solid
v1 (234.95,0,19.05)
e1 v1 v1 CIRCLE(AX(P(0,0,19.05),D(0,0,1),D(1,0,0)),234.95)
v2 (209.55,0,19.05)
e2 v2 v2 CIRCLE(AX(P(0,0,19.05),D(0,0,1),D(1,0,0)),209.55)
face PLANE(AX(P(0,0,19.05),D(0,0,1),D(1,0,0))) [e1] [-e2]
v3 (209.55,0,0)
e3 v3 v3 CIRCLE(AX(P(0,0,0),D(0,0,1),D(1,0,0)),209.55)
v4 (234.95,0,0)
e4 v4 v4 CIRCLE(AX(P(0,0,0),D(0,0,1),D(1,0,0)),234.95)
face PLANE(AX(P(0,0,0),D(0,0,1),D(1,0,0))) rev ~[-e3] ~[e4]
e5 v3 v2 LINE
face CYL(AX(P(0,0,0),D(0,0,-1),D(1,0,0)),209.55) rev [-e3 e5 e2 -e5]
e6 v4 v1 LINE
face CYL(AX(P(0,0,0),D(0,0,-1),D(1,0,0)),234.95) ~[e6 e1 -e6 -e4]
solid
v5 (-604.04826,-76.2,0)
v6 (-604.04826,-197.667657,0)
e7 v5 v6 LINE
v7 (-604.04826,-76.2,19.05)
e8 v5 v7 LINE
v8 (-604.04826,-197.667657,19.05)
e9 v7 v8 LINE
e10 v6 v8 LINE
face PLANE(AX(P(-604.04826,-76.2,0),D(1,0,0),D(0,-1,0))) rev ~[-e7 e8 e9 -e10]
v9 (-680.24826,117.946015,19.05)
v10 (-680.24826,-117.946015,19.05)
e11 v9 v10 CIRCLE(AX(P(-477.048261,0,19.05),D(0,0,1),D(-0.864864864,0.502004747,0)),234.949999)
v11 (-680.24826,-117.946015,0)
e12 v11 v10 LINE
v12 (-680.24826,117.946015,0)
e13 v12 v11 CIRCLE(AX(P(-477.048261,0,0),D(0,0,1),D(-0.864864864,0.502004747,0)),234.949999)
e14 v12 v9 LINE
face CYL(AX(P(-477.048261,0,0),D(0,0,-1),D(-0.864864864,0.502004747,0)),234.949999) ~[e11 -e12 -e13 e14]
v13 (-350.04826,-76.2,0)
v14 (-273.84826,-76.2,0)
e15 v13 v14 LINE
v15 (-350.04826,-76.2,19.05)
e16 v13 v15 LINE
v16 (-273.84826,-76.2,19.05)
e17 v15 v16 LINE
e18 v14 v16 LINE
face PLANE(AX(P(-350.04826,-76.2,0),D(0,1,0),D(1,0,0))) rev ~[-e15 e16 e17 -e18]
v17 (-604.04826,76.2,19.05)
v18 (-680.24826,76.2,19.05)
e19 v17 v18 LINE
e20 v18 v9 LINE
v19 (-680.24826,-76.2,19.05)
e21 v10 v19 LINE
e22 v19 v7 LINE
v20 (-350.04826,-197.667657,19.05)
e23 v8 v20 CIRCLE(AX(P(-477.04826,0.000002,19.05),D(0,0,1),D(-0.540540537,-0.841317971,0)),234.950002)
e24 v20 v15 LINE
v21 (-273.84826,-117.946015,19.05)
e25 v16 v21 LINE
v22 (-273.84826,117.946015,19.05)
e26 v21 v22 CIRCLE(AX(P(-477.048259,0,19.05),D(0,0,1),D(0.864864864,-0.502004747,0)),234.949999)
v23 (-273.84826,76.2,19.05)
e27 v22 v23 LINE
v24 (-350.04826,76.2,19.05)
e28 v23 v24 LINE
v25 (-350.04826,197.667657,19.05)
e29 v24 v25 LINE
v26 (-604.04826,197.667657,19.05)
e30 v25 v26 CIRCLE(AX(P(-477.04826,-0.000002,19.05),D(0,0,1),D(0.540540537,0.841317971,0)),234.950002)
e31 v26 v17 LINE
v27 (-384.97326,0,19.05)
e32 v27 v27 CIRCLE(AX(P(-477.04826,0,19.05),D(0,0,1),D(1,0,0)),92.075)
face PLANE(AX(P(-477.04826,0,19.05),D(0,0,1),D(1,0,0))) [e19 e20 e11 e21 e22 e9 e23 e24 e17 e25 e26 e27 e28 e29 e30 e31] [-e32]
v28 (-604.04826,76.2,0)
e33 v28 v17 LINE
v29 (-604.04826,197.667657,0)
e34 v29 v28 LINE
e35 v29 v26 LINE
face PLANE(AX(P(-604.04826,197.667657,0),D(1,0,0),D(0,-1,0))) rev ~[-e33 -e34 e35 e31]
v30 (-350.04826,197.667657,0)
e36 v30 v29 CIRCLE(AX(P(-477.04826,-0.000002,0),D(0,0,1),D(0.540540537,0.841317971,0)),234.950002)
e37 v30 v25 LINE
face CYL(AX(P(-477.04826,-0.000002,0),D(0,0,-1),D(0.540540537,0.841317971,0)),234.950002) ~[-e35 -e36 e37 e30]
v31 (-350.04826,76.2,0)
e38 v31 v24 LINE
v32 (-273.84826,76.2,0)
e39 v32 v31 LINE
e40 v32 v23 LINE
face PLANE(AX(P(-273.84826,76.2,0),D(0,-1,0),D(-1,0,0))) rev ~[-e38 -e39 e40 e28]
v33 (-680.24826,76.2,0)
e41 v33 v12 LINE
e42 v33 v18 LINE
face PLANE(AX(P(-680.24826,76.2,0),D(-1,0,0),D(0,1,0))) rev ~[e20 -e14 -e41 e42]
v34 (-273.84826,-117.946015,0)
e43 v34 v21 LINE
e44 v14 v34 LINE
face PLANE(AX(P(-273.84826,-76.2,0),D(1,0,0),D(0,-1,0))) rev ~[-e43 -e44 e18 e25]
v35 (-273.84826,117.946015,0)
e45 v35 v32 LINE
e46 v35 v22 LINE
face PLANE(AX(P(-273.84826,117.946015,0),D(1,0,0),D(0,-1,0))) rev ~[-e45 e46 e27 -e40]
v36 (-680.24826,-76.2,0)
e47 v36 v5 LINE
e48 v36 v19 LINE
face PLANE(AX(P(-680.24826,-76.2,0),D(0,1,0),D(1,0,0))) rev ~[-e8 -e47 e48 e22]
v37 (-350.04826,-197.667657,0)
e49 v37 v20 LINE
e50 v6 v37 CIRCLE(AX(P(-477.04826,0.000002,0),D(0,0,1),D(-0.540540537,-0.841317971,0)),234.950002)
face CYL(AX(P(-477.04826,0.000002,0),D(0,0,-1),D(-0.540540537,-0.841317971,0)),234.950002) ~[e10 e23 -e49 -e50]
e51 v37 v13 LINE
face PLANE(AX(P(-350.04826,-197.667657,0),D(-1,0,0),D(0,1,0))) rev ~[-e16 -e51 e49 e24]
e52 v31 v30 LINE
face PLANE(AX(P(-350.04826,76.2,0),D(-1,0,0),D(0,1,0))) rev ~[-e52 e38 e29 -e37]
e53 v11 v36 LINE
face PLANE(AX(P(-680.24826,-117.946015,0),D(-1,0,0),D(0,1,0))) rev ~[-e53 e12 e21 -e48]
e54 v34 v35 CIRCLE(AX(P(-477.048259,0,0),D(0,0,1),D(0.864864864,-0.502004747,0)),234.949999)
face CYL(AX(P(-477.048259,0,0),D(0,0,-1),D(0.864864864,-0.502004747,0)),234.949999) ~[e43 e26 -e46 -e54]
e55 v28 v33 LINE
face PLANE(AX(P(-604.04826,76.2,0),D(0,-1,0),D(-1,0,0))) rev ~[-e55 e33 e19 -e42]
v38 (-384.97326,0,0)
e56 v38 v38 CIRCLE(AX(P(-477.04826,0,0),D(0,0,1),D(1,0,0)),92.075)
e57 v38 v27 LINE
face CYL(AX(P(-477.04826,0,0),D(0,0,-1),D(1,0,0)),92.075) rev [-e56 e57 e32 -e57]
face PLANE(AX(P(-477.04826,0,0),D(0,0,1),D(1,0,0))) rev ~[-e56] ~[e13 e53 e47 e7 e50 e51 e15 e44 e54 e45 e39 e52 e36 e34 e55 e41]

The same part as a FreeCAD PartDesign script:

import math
import FreeCAD as App
import Part
import Sketcher
from FreeCAD import Vector
Q = App.Units.Quantity

doc = App.newDocument("Part")
body = doc.addObject("PartDesign::Body", "Body")

# Sketch on XY plane
sketch1 = body.newObject("Sketcher::SketchObject", "Sketch")
sketch1.AttachmentSupport = (doc.getObject("XY_Plane"), [""])
sketch1.MapMode = "FlatFace"
sketch1.addGeometry([
    Part.Circle(Vector(0, 0, 0), Vector(0, 0, 1), 235),
    Part.Circle(Vector(0, 0, 0), Vector(0, 0, 1), 210),
], False)
sketch1.addConstraint([
    Sketcher.Constraint("Coincident", 0, 3, -1, 1),
    Sketcher.Constraint("Coincident", 1, 3, -1, 1),
    Sketcher.Constraint("Diameter", 0, Q("18.5 in")),
    Sketcher.Constraint("Diameter", 1, Q("16.5 in")),
])
pad1 = body.newObject("PartDesign::Pad", "Pad")
pad1.Profile = sketch1
pad1.Length = Q("0.75 in")
body2 = doc.addObject("PartDesign::Body", "Body001")

# Sketch on XY plane
sketch2 = body2.newObject("Sketcher::SketchObject", "Sketch001")
sketch2.AttachmentSupport = (doc.getObject("XY_Plane001"), [""])
sketch2.MapMode = "FlatFace"
sketch2.addGeometry([
    Part.LineSegment(Vector(-350, 76, 0), Vector(-350, 198, 0)),  # 0
    Part.ArcOfCircle(Part.Circle(Vector(-477, 0, 0), Vector(0, 0, 1), 235), math.radians(57), math.radians(123)),  # 1
    Part.LineSegment(Vector(-604, 198, 0), Vector(-604, 76, 0)),  # 2
    Part.LineSegment(Vector(-604, 76, 0), Vector(-680, 76, 0)),  # 3
    Part.LineSegment(Vector(-680, 76, 0), Vector(-680, 118, 0)),  # 4
    Part.ArcOfCircle(Part.Circle(Vector(-477, 0, 0), Vector(0, 0, 1), 235), math.radians(150), math.radians(210)),  # 5
    Part.LineSegment(Vector(-680, -118, 0), Vector(-680, -76, 0)),  # 6
    Part.LineSegment(Vector(-680, -76, 0), Vector(-604, -76, 0)),  # 7
    Part.LineSegment(Vector(-604, -76, 0), Vector(-604, -198, 0)),  # 8
    Part.ArcOfCircle(Part.Circle(Vector(-477, 0, 0), Vector(0, 0, 1), 235), math.radians(-123), math.radians(-57)),  # 9
    Part.LineSegment(Vector(-350, -198, 0), Vector(-350, -76, 0)),  # 10
    Part.LineSegment(Vector(-350, -76, 0), Vector(-274, -76, 0)),  # 11
    Part.LineSegment(Vector(-274, -76, 0), Vector(-274, -118, 0)),  # 12
    Part.ArcOfCircle(Part.Circle(Vector(-477, 0, 0), Vector(0, 0, 1), 235), math.radians(-30), math.radians(30)),  # 13
    Part.LineSegment(Vector(-274, 118, 0), Vector(-274, 76, 0)),  # 14
    Part.LineSegment(Vector(-274, 76, 0), Vector(-350, 76, 0)),  # 15
    Part.Circle(Vector(-477, 0, 0), Vector(0, 0, 1), 92),  # 16
], False)
sketch2.addConstraint([
    Sketcher.Constraint("Coincident", 0, 2, 1, 1),
    Sketcher.Constraint("Coincident", 1, 2, 2, 1),
    Sketcher.Constraint("Coincident", 2, 2, 3, 1),
    Sketcher.Constraint("Coincident", 3, 2, 4, 1),
    Sketcher.Constraint("Coincident", 4, 2, 5, 1),
    Sketcher.Constraint("Coincident", 5, 2, 6, 1),
    Sketcher.Constraint("Coincident", 6, 2, 7, 1),
    Sketcher.Constraint("Coincident", 7, 2, 8, 1),
    Sketcher.Constraint("Coincident", 8, 2, 9, 1),
    Sketcher.Constraint("Coincident", 9, 2, 10, 1),
    Sketcher.Constraint("Coincident", 10, 2, 11, 1),
    Sketcher.Constraint("Coincident", 11, 2, 12, 1),
    Sketcher.Constraint("Coincident", 12, 2, 13, 1),
    Sketcher.Constraint("Coincident", 13, 2, 14, 1),
    Sketcher.Constraint("Coincident", 14, 2, 15, 1),
    Sketcher.Constraint("Coincident", 15, 2, 0, 1),
    Sketcher.Constraint("Vertical", 0),
    Sketcher.Constraint("Vertical", 2),
    Sketcher.Constraint("Horizontal", 3),
    Sketcher.Constraint("Vertical", 4),
    Sketcher.Constraint("Vertical", 6),
    Sketcher.Constraint("Horizontal", 7),
    Sketcher.Constraint("Vertical", 8),
    Sketcher.Constraint("Vertical", 10),
    Sketcher.Constraint("Horizontal", 11),
    Sketcher.Constraint("Vertical", 12),
    Sketcher.Constraint("Vertical", 14),
    Sketcher.Constraint("Horizontal", 15),
    Sketcher.Constraint("Coincident", 5, 3, 1, 3),
    Sketcher.Constraint("Coincident", 9, 3, 1, 3),
    Sketcher.Constraint("Coincident", 13, 3, 1, 3),
    Sketcher.Constraint("Coincident", 16, 3, 1, 3),
    Sketcher.Constraint("Equal", 1, 9),
    Sketcher.Constraint("Equal", 5, 13),
    Sketcher.Constraint("Symmetric", 4, 2, 5, 2, -1),
    Sketcher.Constraint("Symmetric", 2, 2, 7, 2, -1),
    Sketcher.Constraint("Symmetric", 11, 2, 14, 2, -1),
    Sketcher.Constraint("Horizontal", 0, 2, 1, 2),
    Sketcher.Constraint("Horizontal", 8, 2, 9, 2),
    Sketcher.Constraint("Horizontal", 7, 2, 10, 2),
    Sketcher.Constraint("Horizontal", 5, 2, 12, 2),
    Sketcher.Constraint("Diameter", 16, Q("7.25 in")),
    Sketcher.Constraint("DistanceX", 3, 2, 3, 1, Q("3 in")),
    Sketcher.Constraint("Radius", 1, Q("9.2500001 in")),
    Sketcher.Constraint("Radius", 5, Q("9.25 in")),
    Sketcher.Constraint("DistanceY", -1, 1, 2, 2, Q("3 in")),
    Sketcher.Constraint("DistanceX", 9, 3, 0, 2, Q("5 in")),
    Sketcher.Constraint("DistanceX", 1, 3, -1, 1, 477.04826),
])
pad2 = body2.newObject("PartDesign::Pad", "Pad001")
pad2.Profile = sketch2
pad2.Length = Q("0.75 in")

doc.recompute()
